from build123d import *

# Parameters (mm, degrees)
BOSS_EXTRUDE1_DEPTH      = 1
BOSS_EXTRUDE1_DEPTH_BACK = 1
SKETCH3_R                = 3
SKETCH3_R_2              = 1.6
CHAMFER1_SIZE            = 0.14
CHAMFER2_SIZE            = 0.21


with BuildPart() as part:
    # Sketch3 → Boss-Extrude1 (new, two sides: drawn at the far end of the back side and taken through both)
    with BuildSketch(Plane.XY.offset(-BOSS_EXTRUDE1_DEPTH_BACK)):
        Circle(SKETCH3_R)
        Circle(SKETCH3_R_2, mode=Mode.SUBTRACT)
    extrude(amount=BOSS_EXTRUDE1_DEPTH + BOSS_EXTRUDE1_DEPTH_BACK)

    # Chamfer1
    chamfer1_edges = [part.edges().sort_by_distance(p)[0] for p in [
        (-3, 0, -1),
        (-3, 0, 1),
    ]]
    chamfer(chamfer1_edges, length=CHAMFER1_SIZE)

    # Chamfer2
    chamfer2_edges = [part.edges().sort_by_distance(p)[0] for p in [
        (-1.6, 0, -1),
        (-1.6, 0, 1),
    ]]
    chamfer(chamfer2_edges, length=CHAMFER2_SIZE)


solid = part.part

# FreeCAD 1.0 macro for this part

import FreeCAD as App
import Part
import Sketcher

V = App.Vector


def edges_at(feature, points):
    """Names of the edges that pass closest to the given points."""
    edges = feature.Shape.Edges
    near = lambda p: min(range(len(edges)), key=lambda i: edges[i].distToShape(Part.Vertex(*p))[0])
    return sorted({f"Edge{near(p) + 1}" for p in points})

doc = App.newDocument("Part")
body = doc.addObject("PartDesign::Body", "Body")

# Sketch on XY plane
sketch1 = doc.addObject("Sketcher::SketchObject", "Sketch")
body.addObject(sketch1)
sketch1.AttachmentSupport = (doc.XY_Plane, [""])
sketch1.MapMode = "FlatFace"
sketch1.addGeometry(Part.Circle(V(0, 0, 0), V(0, 0, 1), 3), False)
sketch1.addGeometry(Part.Circle(V(0, 0, 0), V(0, 0, 1), 1.6), False)
sketch1.addConstraint(Sketcher.Constraint("Coincident", 0, 3, -1, 1))
sketch1.addConstraint(Sketcher.Constraint("Coincident", 1, 3, -1, 1))
sketch1.addConstraint(Sketcher.Constraint("Diameter", 0, 6.0))
sketch1.addConstraint(Sketcher.Constraint("Diameter", 1, 3.2))
pad1 = doc.addObject("PartDesign::Pad", "Pad")
body.addObject(pad1)
pad1.Profile = sketch1
pad1.Type = "TwoLengths"
pad1.Length = 1
pad1.Length2 = 1
doc.recompute()

chamfer = doc.addObject("PartDesign::Chamfer", "Chamfer")
body.addObject(chamfer)
chamfer.Base = (pad1, edges_at(pad1, [(-3, 0, -1), (-3, 0, 1)]))
chamfer.Size = 0.14
doc.recompute()

chamfer2 = doc.addObject("PartDesign::Chamfer", "Chamfer001")
body.addObject(chamfer2)
chamfer2.Base = (chamfer, edges_at(chamfer, [(-1.6, 0, -1), (-1.6, 0, 1)]))
chamfer2.Size = 0.21

doc.recompute()
